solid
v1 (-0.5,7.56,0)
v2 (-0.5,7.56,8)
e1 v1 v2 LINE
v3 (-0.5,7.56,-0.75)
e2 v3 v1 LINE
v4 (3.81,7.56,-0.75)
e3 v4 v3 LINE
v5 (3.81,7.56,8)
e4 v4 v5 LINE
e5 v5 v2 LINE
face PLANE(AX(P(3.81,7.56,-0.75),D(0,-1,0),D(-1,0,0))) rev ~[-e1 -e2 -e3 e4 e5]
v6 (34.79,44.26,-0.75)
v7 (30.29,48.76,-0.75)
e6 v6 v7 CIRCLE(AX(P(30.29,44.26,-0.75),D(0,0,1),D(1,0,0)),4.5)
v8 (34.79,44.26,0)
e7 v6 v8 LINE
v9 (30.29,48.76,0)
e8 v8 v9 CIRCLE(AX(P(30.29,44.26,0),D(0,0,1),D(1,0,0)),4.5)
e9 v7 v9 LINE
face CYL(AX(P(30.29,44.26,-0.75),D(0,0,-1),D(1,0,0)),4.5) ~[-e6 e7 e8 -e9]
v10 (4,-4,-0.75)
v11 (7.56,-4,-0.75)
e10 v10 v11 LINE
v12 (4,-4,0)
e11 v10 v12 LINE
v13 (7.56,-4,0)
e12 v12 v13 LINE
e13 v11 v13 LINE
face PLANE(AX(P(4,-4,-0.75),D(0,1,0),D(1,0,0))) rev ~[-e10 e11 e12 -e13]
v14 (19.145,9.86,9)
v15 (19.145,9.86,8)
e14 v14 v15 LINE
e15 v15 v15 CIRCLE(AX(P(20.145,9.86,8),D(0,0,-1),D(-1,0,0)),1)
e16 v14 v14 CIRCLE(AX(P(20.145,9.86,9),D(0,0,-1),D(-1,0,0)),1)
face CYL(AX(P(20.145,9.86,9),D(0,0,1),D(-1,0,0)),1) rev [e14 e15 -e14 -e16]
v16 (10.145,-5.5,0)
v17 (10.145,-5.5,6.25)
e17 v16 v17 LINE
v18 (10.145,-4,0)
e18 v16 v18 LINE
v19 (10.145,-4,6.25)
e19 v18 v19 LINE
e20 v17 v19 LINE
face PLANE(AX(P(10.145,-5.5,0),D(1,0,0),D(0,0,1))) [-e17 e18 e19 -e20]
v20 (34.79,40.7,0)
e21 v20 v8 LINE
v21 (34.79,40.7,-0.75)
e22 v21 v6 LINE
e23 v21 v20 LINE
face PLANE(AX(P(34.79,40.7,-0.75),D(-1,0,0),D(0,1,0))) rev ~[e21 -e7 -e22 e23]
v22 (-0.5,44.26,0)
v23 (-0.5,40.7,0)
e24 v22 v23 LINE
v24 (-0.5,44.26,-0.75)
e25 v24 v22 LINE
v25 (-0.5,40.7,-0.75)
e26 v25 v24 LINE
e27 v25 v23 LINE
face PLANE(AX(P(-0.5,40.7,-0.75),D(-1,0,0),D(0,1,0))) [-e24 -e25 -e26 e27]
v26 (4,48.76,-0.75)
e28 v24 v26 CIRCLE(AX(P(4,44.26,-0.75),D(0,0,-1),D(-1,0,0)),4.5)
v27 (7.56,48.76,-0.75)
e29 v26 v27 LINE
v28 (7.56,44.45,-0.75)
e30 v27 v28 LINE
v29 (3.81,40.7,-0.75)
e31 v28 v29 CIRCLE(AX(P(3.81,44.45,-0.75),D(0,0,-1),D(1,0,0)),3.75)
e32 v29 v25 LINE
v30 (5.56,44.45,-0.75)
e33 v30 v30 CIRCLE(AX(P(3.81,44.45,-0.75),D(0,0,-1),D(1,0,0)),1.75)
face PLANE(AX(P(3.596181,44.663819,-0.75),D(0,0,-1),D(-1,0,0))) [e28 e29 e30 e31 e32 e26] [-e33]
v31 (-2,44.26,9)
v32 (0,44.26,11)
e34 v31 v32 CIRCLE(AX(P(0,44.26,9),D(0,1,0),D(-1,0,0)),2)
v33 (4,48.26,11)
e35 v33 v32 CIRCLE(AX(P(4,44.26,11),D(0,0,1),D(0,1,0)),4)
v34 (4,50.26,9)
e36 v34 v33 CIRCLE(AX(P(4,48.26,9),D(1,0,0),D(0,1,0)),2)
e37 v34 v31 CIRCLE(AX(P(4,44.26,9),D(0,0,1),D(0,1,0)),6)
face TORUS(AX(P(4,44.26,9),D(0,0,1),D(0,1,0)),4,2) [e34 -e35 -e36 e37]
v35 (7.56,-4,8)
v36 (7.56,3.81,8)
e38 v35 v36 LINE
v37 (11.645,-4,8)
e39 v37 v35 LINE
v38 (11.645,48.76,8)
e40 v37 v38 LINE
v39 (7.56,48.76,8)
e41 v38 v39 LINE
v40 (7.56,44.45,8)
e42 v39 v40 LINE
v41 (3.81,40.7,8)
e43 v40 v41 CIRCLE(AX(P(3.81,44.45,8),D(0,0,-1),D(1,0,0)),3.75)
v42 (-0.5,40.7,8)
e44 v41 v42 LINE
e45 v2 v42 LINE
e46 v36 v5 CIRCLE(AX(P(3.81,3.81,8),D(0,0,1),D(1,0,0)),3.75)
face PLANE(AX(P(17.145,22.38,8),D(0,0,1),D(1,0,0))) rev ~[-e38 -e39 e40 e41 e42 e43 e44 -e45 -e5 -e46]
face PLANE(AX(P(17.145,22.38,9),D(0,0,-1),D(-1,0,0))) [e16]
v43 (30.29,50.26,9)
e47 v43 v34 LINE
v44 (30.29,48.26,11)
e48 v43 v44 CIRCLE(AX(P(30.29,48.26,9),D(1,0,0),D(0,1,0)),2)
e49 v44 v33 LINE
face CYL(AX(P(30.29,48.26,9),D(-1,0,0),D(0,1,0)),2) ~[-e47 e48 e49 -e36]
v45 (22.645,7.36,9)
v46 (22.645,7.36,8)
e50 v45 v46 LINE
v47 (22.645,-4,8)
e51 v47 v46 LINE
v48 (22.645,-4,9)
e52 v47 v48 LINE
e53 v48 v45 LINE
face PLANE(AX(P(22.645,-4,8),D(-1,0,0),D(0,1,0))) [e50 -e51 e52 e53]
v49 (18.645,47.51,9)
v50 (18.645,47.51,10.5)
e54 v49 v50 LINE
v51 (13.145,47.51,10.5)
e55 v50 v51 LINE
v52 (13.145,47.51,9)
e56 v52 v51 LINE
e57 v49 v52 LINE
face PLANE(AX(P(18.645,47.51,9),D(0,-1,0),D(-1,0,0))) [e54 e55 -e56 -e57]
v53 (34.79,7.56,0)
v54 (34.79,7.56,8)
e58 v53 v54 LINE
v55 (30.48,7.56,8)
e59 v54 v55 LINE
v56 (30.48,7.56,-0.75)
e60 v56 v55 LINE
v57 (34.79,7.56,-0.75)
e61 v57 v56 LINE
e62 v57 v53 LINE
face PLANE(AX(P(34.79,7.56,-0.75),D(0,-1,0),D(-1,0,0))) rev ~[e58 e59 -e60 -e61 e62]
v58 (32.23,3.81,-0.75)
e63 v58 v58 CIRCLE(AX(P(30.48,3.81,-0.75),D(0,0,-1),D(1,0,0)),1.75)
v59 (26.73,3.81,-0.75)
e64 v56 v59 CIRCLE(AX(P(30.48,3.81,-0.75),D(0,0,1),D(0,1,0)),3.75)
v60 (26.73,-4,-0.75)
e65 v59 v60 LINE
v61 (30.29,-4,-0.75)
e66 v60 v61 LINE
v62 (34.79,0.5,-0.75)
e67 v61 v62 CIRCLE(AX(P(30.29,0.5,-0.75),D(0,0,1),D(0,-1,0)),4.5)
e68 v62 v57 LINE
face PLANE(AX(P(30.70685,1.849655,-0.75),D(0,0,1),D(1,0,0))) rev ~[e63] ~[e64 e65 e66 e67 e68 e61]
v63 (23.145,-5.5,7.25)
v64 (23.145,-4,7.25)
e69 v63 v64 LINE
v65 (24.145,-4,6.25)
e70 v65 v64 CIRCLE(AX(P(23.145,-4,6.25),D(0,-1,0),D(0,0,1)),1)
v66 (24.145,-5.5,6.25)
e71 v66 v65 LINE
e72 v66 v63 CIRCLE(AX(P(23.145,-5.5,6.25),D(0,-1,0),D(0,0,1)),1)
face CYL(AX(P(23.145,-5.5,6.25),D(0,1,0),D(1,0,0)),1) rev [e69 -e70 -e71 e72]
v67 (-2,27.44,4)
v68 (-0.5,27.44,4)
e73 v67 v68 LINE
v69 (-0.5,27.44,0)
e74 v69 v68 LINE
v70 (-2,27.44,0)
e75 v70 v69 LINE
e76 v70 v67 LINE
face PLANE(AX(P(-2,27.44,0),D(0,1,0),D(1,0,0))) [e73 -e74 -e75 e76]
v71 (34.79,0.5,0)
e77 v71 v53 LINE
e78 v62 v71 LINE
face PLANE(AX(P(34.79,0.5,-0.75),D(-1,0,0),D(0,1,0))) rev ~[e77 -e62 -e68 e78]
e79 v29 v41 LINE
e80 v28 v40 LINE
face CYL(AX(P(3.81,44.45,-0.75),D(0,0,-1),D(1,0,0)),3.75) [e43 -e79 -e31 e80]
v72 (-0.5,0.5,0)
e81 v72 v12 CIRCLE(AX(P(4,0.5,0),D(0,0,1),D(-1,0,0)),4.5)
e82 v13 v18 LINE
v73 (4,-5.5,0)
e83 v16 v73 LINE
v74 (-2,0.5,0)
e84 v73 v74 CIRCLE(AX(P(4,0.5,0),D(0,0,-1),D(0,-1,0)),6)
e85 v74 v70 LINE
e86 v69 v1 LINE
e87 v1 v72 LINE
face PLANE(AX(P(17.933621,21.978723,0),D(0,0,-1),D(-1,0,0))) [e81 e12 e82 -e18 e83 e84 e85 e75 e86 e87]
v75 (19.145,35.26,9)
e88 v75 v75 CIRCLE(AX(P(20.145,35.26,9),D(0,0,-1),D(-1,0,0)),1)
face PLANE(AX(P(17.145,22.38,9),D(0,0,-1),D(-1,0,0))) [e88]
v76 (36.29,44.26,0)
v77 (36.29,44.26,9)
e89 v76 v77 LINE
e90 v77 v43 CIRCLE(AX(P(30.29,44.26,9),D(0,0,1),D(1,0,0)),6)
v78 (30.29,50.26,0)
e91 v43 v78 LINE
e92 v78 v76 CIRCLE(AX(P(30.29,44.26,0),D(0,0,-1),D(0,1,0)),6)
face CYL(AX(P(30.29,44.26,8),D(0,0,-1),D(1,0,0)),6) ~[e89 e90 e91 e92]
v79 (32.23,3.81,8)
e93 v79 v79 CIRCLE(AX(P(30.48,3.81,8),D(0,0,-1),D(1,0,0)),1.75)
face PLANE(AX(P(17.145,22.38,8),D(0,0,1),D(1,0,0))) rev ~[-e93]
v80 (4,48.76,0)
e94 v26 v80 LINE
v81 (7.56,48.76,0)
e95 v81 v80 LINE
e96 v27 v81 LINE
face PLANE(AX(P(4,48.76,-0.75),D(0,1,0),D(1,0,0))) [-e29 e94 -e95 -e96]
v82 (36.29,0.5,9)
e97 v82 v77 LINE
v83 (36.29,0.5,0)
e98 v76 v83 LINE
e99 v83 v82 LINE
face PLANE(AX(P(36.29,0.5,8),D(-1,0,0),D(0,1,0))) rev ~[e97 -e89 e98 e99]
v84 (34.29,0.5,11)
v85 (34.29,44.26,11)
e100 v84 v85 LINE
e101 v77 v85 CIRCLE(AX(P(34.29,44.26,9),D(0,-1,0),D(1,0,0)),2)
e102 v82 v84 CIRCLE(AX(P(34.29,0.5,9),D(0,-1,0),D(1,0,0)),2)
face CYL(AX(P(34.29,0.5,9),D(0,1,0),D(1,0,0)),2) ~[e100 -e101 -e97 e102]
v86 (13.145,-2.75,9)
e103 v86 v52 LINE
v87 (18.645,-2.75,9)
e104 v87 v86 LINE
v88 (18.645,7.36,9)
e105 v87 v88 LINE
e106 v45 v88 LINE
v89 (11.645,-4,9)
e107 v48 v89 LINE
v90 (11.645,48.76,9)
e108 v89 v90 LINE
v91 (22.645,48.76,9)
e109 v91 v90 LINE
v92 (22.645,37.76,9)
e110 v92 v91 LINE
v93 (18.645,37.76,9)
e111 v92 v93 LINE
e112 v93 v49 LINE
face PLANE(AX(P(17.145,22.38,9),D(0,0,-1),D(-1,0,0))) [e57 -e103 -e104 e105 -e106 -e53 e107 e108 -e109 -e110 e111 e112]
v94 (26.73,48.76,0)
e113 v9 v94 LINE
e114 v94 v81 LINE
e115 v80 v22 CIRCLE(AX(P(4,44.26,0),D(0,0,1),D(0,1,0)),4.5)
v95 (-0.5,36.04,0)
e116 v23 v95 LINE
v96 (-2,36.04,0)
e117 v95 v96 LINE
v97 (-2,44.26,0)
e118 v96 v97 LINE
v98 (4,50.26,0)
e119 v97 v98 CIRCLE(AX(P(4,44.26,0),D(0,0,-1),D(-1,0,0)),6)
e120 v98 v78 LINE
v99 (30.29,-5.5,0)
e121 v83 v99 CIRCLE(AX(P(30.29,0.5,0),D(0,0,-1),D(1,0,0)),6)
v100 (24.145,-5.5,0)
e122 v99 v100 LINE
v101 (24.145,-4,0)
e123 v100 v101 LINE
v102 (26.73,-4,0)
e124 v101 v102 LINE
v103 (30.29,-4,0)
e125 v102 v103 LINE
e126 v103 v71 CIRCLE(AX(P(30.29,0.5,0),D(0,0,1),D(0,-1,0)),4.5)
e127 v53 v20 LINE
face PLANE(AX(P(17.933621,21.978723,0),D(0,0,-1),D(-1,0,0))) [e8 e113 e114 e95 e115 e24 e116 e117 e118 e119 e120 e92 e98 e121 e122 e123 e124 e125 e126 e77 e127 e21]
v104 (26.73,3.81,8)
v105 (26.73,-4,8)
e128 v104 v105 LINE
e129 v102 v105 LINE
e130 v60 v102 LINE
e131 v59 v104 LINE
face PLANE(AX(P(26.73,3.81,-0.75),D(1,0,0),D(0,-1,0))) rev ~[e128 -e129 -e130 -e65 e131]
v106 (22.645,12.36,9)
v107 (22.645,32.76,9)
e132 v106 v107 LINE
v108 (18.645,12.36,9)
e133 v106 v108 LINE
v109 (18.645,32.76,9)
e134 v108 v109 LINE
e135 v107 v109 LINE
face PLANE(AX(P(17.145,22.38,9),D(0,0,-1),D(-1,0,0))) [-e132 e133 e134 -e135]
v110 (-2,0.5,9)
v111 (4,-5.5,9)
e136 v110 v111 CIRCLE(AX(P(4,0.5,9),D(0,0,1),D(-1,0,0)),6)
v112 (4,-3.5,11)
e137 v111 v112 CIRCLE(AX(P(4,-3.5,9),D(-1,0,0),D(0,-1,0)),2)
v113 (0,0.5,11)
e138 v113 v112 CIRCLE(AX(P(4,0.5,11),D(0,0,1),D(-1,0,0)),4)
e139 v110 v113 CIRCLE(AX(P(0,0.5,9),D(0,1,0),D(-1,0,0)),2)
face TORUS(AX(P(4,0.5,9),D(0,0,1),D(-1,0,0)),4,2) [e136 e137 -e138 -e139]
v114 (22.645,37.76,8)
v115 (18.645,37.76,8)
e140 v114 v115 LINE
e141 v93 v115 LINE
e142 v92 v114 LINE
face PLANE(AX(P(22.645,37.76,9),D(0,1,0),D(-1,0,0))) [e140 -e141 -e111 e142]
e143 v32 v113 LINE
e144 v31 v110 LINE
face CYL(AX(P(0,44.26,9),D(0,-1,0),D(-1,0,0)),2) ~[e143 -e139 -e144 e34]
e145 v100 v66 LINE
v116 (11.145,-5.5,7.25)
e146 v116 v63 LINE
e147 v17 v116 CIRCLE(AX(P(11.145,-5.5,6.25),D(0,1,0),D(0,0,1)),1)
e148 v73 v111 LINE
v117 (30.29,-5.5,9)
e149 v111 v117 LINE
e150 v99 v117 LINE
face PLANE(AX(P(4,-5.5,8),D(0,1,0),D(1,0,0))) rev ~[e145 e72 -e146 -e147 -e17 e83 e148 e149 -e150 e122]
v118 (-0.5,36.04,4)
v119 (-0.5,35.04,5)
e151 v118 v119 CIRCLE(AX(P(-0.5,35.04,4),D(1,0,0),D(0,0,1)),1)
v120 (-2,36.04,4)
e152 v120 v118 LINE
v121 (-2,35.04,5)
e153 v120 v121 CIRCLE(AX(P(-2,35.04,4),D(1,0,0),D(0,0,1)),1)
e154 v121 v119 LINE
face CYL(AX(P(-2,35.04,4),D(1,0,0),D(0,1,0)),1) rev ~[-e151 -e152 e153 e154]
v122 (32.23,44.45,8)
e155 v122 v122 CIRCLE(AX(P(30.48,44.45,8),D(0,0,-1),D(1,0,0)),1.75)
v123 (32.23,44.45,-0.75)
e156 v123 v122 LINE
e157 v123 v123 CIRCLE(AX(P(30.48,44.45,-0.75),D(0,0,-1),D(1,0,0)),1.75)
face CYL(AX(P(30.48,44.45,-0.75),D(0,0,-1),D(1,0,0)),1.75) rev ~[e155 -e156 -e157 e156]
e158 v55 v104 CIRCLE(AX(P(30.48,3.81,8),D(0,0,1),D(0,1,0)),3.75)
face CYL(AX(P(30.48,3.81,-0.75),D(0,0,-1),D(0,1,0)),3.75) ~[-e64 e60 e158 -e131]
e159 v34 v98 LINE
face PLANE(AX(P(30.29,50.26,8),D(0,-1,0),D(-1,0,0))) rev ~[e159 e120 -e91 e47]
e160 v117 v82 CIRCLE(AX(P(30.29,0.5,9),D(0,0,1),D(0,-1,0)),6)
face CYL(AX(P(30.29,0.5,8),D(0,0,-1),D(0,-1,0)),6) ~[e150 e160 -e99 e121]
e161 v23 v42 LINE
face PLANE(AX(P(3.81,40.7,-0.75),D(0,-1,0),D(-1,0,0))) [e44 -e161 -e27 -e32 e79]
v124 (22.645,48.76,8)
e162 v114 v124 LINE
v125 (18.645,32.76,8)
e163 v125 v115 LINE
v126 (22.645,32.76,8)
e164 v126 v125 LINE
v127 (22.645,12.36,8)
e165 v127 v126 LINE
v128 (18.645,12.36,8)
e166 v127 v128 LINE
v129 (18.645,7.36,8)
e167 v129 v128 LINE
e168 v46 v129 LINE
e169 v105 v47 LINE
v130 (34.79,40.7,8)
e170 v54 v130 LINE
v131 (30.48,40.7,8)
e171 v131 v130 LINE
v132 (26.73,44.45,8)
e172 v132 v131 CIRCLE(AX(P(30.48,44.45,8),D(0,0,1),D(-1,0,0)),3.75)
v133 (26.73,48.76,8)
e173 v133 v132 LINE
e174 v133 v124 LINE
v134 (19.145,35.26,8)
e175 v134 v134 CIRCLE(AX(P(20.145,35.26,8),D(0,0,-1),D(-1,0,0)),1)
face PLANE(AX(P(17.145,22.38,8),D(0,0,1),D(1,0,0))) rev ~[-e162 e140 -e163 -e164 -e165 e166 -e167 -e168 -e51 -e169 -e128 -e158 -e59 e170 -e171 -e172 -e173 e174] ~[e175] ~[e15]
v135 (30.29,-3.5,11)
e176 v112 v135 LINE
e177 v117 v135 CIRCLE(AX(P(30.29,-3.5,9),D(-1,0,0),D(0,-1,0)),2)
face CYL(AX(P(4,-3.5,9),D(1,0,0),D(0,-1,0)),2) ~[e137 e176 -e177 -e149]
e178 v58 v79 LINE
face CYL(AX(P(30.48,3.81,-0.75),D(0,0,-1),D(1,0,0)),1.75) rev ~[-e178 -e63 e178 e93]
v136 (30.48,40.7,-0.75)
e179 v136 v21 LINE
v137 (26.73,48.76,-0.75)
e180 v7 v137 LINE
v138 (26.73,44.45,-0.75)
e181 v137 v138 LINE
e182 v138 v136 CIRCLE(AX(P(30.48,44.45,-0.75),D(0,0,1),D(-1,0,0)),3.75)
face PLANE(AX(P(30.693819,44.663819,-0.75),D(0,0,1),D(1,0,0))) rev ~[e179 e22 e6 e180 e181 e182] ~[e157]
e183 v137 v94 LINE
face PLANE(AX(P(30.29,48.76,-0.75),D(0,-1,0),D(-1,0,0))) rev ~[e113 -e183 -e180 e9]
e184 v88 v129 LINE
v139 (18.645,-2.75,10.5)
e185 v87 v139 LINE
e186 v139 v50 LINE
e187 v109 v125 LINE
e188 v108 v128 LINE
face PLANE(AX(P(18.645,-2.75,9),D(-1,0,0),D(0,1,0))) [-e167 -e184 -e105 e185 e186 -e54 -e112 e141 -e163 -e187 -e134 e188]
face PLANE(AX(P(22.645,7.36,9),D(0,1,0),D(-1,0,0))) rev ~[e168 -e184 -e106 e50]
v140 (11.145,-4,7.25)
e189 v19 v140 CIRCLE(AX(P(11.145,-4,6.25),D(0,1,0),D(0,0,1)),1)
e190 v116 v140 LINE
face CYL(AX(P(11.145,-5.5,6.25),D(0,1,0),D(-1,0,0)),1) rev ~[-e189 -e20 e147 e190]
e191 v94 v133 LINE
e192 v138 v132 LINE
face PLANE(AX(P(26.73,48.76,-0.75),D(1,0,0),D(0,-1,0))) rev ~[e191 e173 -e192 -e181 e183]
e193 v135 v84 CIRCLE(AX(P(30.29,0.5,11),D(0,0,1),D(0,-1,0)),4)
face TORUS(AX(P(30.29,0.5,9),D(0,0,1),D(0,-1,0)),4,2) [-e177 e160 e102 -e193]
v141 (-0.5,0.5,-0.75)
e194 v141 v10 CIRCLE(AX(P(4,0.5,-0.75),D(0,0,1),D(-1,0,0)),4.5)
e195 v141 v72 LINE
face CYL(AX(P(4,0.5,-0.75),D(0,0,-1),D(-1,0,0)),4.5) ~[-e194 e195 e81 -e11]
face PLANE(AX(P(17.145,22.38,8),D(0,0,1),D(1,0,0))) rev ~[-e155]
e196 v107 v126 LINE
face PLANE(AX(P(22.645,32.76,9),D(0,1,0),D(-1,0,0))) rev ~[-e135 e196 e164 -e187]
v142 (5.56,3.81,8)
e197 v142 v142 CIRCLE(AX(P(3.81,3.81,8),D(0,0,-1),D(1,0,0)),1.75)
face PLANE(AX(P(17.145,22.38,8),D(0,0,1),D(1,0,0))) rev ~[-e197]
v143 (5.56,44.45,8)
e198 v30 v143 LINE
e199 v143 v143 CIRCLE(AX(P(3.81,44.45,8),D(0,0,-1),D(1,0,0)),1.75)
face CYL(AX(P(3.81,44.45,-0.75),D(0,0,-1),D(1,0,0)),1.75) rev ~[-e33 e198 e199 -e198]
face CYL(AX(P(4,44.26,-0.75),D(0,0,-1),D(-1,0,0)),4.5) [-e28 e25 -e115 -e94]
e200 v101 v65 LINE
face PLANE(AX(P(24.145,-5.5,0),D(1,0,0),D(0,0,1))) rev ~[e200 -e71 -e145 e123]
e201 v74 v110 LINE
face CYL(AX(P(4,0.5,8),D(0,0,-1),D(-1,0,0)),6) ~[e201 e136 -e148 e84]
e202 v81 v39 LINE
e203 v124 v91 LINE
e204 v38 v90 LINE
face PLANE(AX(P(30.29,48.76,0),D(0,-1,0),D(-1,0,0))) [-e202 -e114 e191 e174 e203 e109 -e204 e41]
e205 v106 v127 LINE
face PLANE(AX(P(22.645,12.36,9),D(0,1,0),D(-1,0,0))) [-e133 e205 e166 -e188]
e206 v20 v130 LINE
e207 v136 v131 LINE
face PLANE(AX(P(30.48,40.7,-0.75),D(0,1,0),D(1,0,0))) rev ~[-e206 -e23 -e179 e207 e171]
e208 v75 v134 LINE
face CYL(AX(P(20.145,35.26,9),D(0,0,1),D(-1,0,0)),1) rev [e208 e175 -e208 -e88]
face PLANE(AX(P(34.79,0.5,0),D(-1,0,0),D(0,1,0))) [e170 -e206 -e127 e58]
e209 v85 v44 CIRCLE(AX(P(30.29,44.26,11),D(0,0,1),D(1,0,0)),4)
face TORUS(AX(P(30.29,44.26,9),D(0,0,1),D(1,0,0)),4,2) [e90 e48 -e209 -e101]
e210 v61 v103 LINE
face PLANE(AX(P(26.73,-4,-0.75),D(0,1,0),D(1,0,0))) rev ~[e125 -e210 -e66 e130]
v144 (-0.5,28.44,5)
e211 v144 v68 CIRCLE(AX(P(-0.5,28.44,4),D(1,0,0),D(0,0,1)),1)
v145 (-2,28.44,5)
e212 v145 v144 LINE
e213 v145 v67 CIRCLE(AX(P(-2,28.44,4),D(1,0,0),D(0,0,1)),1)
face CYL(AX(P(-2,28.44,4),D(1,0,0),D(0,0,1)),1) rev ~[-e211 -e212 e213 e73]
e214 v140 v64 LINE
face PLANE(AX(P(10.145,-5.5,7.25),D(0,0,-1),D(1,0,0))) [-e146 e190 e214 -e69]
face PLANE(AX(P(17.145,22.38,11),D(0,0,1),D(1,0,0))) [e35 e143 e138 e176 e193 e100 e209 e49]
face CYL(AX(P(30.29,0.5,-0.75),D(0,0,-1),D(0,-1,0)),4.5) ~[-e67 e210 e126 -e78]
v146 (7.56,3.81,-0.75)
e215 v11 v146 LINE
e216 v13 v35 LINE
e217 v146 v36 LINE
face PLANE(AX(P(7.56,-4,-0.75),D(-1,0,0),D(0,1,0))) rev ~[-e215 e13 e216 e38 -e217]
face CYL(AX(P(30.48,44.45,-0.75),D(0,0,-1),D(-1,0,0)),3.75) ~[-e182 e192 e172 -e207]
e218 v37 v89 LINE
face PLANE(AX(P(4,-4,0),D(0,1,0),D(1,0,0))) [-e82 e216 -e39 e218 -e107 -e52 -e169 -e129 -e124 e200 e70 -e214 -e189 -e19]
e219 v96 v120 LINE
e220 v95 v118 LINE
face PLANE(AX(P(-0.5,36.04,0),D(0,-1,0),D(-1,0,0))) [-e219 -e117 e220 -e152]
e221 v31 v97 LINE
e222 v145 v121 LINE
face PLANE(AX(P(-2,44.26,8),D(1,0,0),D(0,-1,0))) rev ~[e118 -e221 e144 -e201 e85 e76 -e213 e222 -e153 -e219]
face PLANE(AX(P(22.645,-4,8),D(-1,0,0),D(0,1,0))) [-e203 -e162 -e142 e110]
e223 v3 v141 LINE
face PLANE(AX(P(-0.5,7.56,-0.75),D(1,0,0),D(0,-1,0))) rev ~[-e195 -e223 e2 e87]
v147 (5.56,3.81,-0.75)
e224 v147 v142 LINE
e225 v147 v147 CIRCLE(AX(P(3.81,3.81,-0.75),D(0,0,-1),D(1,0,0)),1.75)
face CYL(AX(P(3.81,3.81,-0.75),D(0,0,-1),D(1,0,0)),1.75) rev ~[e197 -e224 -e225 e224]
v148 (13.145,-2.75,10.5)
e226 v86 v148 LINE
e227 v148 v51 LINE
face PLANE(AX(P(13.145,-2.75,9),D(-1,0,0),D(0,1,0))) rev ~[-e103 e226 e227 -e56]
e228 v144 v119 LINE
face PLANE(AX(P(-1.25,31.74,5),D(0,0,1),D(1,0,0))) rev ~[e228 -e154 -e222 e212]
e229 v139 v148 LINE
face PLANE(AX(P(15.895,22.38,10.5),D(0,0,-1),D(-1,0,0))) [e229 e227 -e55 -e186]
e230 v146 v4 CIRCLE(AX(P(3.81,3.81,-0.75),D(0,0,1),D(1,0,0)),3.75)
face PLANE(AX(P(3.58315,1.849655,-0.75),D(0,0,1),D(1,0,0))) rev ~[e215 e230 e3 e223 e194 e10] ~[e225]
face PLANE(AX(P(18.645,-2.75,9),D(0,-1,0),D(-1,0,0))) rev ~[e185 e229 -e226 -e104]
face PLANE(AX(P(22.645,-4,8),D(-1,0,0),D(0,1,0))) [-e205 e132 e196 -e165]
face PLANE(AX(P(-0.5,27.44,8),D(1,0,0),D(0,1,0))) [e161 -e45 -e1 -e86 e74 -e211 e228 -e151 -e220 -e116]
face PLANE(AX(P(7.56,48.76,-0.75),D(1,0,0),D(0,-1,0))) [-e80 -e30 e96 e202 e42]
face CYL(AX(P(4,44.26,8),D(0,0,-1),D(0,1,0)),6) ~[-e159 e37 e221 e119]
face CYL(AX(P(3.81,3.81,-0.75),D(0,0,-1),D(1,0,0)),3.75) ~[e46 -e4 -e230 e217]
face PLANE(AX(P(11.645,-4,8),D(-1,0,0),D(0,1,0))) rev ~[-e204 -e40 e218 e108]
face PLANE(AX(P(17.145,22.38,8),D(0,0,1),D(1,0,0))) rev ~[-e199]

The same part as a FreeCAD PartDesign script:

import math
import FreeCAD as App
import Part
import Sketcher
Q = App.Units.Quantity


def edges_at(feature, points):
    """Names of the edges that pass closest to the given points."""
    edges = feature.Shape.Edges
    near = lambda p: min(range(len(edges)), key=lambda i: edges[i].distToShape(Part.Vertex(*p))[0])
    return sorted({f"Edge{near(p) + 1}" for p in points})

doc = App.newDocument("Part")
body = doc.addObject("PartDesign::Body", "Body")

# Sketch on XY plane
sketch1 = doc.addObject("Sketcher::SketchObject", "Sketch")
body.addObject(sketch1)
sketch1.AttachmentSupport = (doc.XY_Plane, [""])
sketch1.MapMode = "FlatFace"
sketch1.addGeometry(Part.LineSegment(App.Vector(-0.5, 0.5, 0), App.Vector(-0.5, 27.4, 0)), False)
sketch1.addGeometry(Part.LineSegment(App.Vector(-0.5, 27.4, 0), App.Vector(-2, 27.4, 0)), False)
sketch1.addGeometry(Part.LineSegment(App.Vector(-2, 27.4, 0), App.Vector(-2, 0.5, 0)), False)
sketch1.addGeometry(Part.ArcOfCircle(Part.Circle(App.Vector(4, 0.5, 0), App.Vector(0, 0, 1), 6), math.radians(180), math.radians(270)), False)
sketch1.addGeometry(Part.LineSegment(App.Vector(4, -5.5, 0), App.Vector(30.3, -5.5, 0)), False)
sketch1.addGeometry(Part.ArcOfCircle(Part.Circle(App.Vector(30.3, 0.5, 0), App.Vector(0, 0, 1), 6), math.radians(-90), math.radians(0)), False)
sketch1.addGeometry(Part.LineSegment(App.Vector(36.3, 0.5, 0), App.Vector(36.3, 44.3, 0)), False)
sketch1.addGeometry(Part.ArcOfCircle(Part.Circle(App.Vector(30.3, 44.3, 0), App.Vector(0, 0, 1), 6), math.radians(0), math.radians(90)), False)
sketch1.addGeometry(Part.LineSegment(App.Vector(30.3, 50.3, 0), App.Vector(4, 50.3, 0)), False)
sketch1.addGeometry(Part.ArcOfCircle(Part.Circle(App.Vector(4, 44.3, 0), App.Vector(0, 0, 1), 6), math.radians(90), math.radians(180)), False)
sketch1.addGeometry(Part.LineSegment(App.Vector(-2, 44.3, 0), App.Vector(-2, 36, 0)), False)
sketch1.addGeometry(Part.LineSegment(App.Vector(-2, 36, 0), App.Vector(-0.5, 36, 0)), False)
sketch1.addGeometry(Part.LineSegment(App.Vector(-0.5, 36, 0), App.Vector(-0.5, 44.3, 0)), False)
sketch1.addGeometry(Part.ArcOfCircle(Part.Circle(App.Vector(4, 44.3, 0), App.Vector(0, 0, 1), 4.5), math.radians(90), math.radians(180)), False)
sketch1.addGeometry(Part.LineSegment(App.Vector(4, 48.8, 0), App.Vector(30.3, 48.8, 0)), False)
sketch1.addGeometry(Part.ArcOfCircle(Part.Circle(App.Vector(30.3, 44.3, 0), App.Vector(0, 0, 1), 4.5), math.radians(0), math.radians(90)), False)
sketch1.addGeometry(Part.LineSegment(App.Vector(34.8, 44.3, 0), App.Vector(34.8, 0.5, 0)), False)
sketch1.addGeometry(Part.ArcOfCircle(Part.Circle(App.Vector(30.3, 0.5, 0), App.Vector(0, 0, 1), 4.5), math.radians(-90), math.radians(0)), False)
sketch1.addGeometry(Part.LineSegment(App.Vector(30.3, -4, 0), App.Vector(4, -4, 0)), False)
sketch1.addGeometry(Part.ArcOfCircle(Part.Circle(App.Vector(4, 0.5, 0), App.Vector(0, 0, 1), 4.5), math.radians(-180), math.radians(-90)), False)
sketch1.addConstraint(Sketcher.Constraint("Coincident", 0, 2, 1, 1))
sketch1.addConstraint(Sketcher.Constraint("Coincident", 1, 2, 2, 1))
sketch1.addConstraint(Sketcher.Constraint("Tangent", 2, 2, 3, 1))
sketch1.addConstraint(Sketcher.Constraint("Tangent", 3, 2, 4, 1))
sketch1.addConstraint(Sketcher.Constraint("Tangent", 4, 2, 5, 1))
sketch1.addConstraint(Sketcher.Constraint("Tangent", 5, 2, 6, 1))
sketch1.addConstraint(Sketcher.Constraint("Tangent", 6, 2, 7, 1))
sketch1.addConstraint(Sketcher.Constraint("Tangent", 7, 2, 8, 1))
sketch1.addConstraint(Sketcher.Constraint("Tangent", 8, 2, 9, 1))
sketch1.addConstraint(Sketcher.Constraint("Tangent", 9, 2, 10, 1))
sketch1.addConstraint(Sketcher.Constraint("Coincident", 10, 2, 11, 1))
sketch1.addConstraint(Sketcher.Constraint("Coincident", 11, 2, 12, 1))
sketch1.addConstraint(Sketcher.Constraint("Tangent", 12, 2, 13, 2))
sketch1.addConstraint(Sketcher.Constraint("Tangent", 13, 1, 14, 1))
sketch1.addConstraint(Sketcher.Constraint("Tangent", 14, 2, 15, 2))
sketch1.addConstraint(Sketcher.Constraint("Tangent", 15, 1, 16, 1))
sketch1.addConstraint(Sketcher.Constraint("Tangent", 16, 2, 17, 2))
sketch1.addConstraint(Sketcher.Constraint("Tangent", 17, 1, 18, 1))
sketch1.addConstraint(Sketcher.Constraint("Tangent", 18, 2, 19, 2))
sketch1.addConstraint(Sketcher.Constraint("Tangent", 19, 1, 0, 1))
sketch1.addConstraint(Sketcher.Constraint("Vertical", 0))
sketch1.addConstraint(Sketcher.Constraint("Horizontal", 1))
sketch1.addConstraint(Sketcher.Constraint("Vertical", 2))
sketch1.addConstraint(Sketcher.Constraint("Horizontal", 4))
sketch1.addConstraint(Sketcher.Constraint("Vertical", 6))
sketch1.addConstraint(Sketcher.Constraint("Horizontal", 8))
sketch1.addConstraint(Sketcher.Constraint("Vertical", 10))
sketch1.addConstraint(Sketcher.Constraint("Horizontal", 11))
sketch1.addConstraint(Sketcher.Constraint("Vertical", 12))
sketch1.addConstraint(Sketcher.Constraint("Horizontal", 14))
sketch1.addConstraint(Sketcher.Constraint("Vertical", 16))
sketch1.addConstraint(Sketcher.Constraint("Horizontal", 18))
sketch1.addConstraint(Sketcher.Constraint("Coincident", 13, 3, 9, 3))
sketch1.addConstraint(Sketcher.Constraint("Coincident", 15, 3, 7, 3))
sketch1.addConstraint(Sketcher.Constraint("Coincident", 17, 3, 5, 3))
sketch1.addConstraint(Sketcher.Constraint("Coincident", 19, 3, 3, 3))
sketch1.addConstraint(Sketcher.Constraint("Equal", 3, 5))
sketch1.addConstraint(Sketcher.Constraint("Equal", 5, 7))
sketch1.addConstraint(Sketcher.Constraint("Equal", 7, 9))
sketch1.addConstraint(Sketcher.Constraint("Vertical", 3, 3, 9, 3))
sketch1.addConstraint(Sketcher.Constraint("Radius", 3, Q("6 mm")))
sketch1.addConstraint(Sketcher.Constraint("Radius", 13, Q("4.5 mm")))
sketch1.addConstraint(Sketcher.Constraint("DistanceX", -1, 1, 3, 3, Q("4 mm")))
sketch1.addConstraint(Sketcher.Constraint("DistanceY", 17, 1, -1, 1, Q("4 mm")))
sketch1.addConstraint(Sketcher.Constraint("DistanceX", 4, 1, 4, 2, Q("26.29 mm")))
sketch1.addConstraint(Sketcher.Constraint("DistanceY", 0, 1, 0, 2, Q("26.94 mm")))
sketch1.addConstraint(Sketcher.Constraint("DistanceY", 6, 1, 6, 2, Q("43.76 mm")))
sketch1.addConstraint(Sketcher.Constraint("DistanceY", 10, 2, 10, 1, Q("8.22 mm")))
pad1 = doc.addObject("PartDesign::Pad", "Pad")
body.addObject(pad1)
pad1.Profile = sketch1
pad1.Length = 8

# Sketch on XY plane
sketch2 = doc.addObject("Sketcher::SketchObject", "Sketch001")
body.addObject(sketch2)
sketch2.AttachmentSupport = (doc.XY_Plane, [""])
sketch2.MapMode = "FlatFace"
sketch2.AttachmentOffset = App.Placement(App.Vector(0, 0, 8), App.Rotation())
sketch2.addGeometry(Part.LineSegment(App.Vector(-2, 36, 0), App.Vector(-2, 27.4, 0)), False)
sketch2.addGeometry(Part.LineSegment(App.Vector(-2, 27.4, 0), App.Vector(-0.5, 27.4, 0)), False)
sketch2.addGeometry(Part.LineSegment(App.Vector(-0.5, 27.4, 0), App.Vector(-0.5, 36, 0)), False)
sketch2.addGeometry(Part.LineSegment(App.Vector(-0.5, 36, 0), App.Vector(-2, 36, 0)), False)
sketch2.addConstraint(Sketcher.Constraint("Coincident", 0, 2, 1, 1))
sketch2.addConstraint(Sketcher.Constraint("Coincident", 1, 2, 2, 1))
sketch2.addConstraint(Sketcher.Constraint("Coincident", 2, 2, 3, 1))
sketch2.addConstraint(Sketcher.Constraint("Coincident", 3, 2, 0, 1))
sketch2.addConstraint(Sketcher.Constraint("Vertical", 0))
sketch2.addConstraint(Sketcher.Constraint("Horizontal", 1))
sketch2.addConstraint(Sketcher.Constraint("Vertical", 2))
sketch2.addConstraint(Sketcher.Constraint("Horizontal", 3))
sketch2.addConstraint(Sketcher.Constraint("DistanceX", 1, 1, 1, 2, Q("1.5 mm")))
sketch2.addConstraint(Sketcher.Constraint("DistanceY", 0, 2, 0, 1, Q("8.6 mm")))
sketch2.addConstraint(Sketcher.Constraint("DistanceX", 0, 2, -1, 1, Q("2 mm")))
sketch2.addConstraint(Sketcher.Constraint("DistanceY", -1, 1, 0, 2, Q("27.44 mm")))
pad2 = doc.addObject("PartDesign::Pad", "Pad001")
body.addObject(pad2)
pad2.Profile = sketch2
pad2.Length = 3
pad2.Reversed = True

# Sketch on XY plane
sketch3 = doc.addObject("Sketcher::SketchObject", "Sketch002")
body.addObject(sketch3)
sketch3.AttachmentSupport = (doc.XY_Plane, [""])
sketch3.MapMode = "FlatFace"
sketch3.AttachmentOffset = App.Placement(App.Vector(0, 0, 8), App.Rotation())
sketch3.addGeometry(Part.LineSegment(App.Vector(-2, 44, 0), App.Vector(-2, 0, 0)), False)
sketch3.addGeometry(Part.ArcOfCircle(Part.Circle(App.Vector(4, 0, 0), App.Vector(0, 0, 1), 6), math.radians(180), math.radians(270)), False)
sketch3.addGeometry(Part.LineSegment(App.Vector(4, -6, 0), App.Vector(30, -6, 0)), False)
sketch3.addGeometry(Part.ArcOfCircle(Part.Circle(App.Vector(30, 0, 0), App.Vector(0, 0, 1), 6), math.radians(-90), math.radians(0)), False)
sketch3.addGeometry(Part.LineSegment(App.Vector(36, 0, 0), App.Vector(36, 44, 0)), False)
sketch3.addGeometry(Part.ArcOfCircle(Part.Circle(App.Vector(30, 44, 0), App.Vector(0, 0, 1), 6), math.radians(0), math.radians(90)), False)
sketch3.addGeometry(Part.LineSegment(App.Vector(30, 50, 0), App.Vector(4, 50, 0)), False)
sketch3.addGeometry(Part.ArcOfCircle(Part.Circle(App.Vector(4, 44, 0), App.Vector(0, 0, 1), 6), math.radians(90), math.radians(180)), False)
sketch3.addConstraint(Sketcher.Constraint("Tangent", 0, 2, 1, 1))
sketch3.addConstraint(Sketcher.Constraint("Tangent", 1, 2, 2, 1))
sketch3.addConstraint(Sketcher.Constraint("Tangent", 2, 2, 3, 1))
sketch3.addConstraint(Sketcher.Constraint("Tangent", 3, 2, 4, 1))
sketch3.addConstraint(Sketcher.Constraint("Tangent", 4, 2, 5, 1))
sketch3.addConstraint(Sketcher.Constraint("Tangent", 5, 2, 6, 1))
sketch3.addConstraint(Sketcher.Constraint("Tangent", 6, 2, 7, 1))
sketch3.addConstraint(Sketcher.Constraint("Tangent", 7, 2, 0, 1))
sketch3.addConstraint(Sketcher.Constraint("Vertical", 0))
sketch3.addConstraint(Sketcher.Constraint("Horizontal", 2))
sketch3.addConstraint(Sketcher.Constraint("Vertical", 4))
sketch3.addConstraint(Sketcher.Constraint("Horizontal", 6))
sketch3.addConstraint(Sketcher.Constraint("Equal", 1, 3))
sketch3.addConstraint(Sketcher.Constraint("Equal", 3, 5))
sketch3.addConstraint(Sketcher.Constraint("Equal", 5, 7))
sketch3.addConstraint(Sketcher.Constraint("Radius", 1, Q("6 mm")))
sketch3.addConstraint(Sketcher.Constraint("DistanceX", -1, 1, 1, 3, Q("4 mm")))
sketch3.addConstraint(Sketcher.Constraint("DistanceX", 2, 1, 2, 2, Q("26.29 mm")))
sketch3.addConstraint(Sketcher.Constraint("DistanceY", 0, 2, 0, 1, Q("43.76 mm")))
sketch3.addConstraint(Sketcher.Constraint("DistanceY", -1, 1, 1, 3, Q("0.5 mm")))
pad3 = doc.addObject("PartDesign::Pad", "Pad002")
body.addObject(pad3)
pad3.Profile = sketch3
pad3.Length = 3

# Sketch on XY plane
sketch4 = doc.addObject("Sketcher::SketchObject", "Sketch003")
body.addObject(sketch4)
sketch4.AttachmentSupport = (doc.XY_Plane, [""])
sketch4.MapMode = "FlatFace"
sketch4.AttachmentOffset = App.Placement(App.Vector(0, 0, -0.75), App.Rotation())
sketch4.addGeometry(Part.LineSegment(App.Vector(26.7, 48.8, 0), App.Vector(30.3, 48.8, 0)), False)
sketch4.addGeometry(Part.ArcOfCircle(Part.Circle(App.Vector(30.3, 44.3, 0), App.Vector(0, 0, 1), 4.5), math.radians(0), math.radians(90)), False)
sketch4.addGeometry(Part.LineSegment(App.Vector(34.8, 44.3, 0), App.Vector(34.8, 40.7, 0)), False)
sketch4.addGeometry(Part.LineSegment(App.Vector(34.8, 40.7, 0), App.Vector(30.5, 40.7, 0)), False)
sketch4.addGeometry(Part.ArcOfCircle(Part.Circle(App.Vector(30.5, 44.5, 0), App.Vector(0, 0, 1), 3.8), math.radians(-180), math.radians(-90)), False)
sketch4.addGeometry(Part.LineSegment(App.Vector(26.7, 44.5, 0), App.Vector(26.7, 48.8, 0)), False)
sketch4.addGeometry(Part.Circle(App.Vector(30.5, 44.5, 0), App.Vector(0, 0, 1), 1.8), False)
sketch4.addGeometry(Part.LineSegment(App.Vector(3.8, 40.7, 0), App.Vector(-0.5, 40.7, 0)), False)
sketch4.addGeometry(Part.LineSegment(App.Vector(-0.5, 40.7, 0), App.Vector(-0.5, 44.3, 0)), False)
sketch4.addGeometry(Part.ArcOfCircle(Part.Circle(App.Vector(4, 44.3, 0), App.Vector(0, 0, 1), 4.5), math.radians(90), math.radians(180)), False)
sketch4.addGeometry(Part.LineSegment(App.Vector(4, 48.8, 0), App.Vector(7.6, 48.8, 0)), False)
sketch4.addGeometry(Part.LineSegment(App.Vector(7.6, 48.8, 0), App.Vector(7.6, 44.5, 0)), False)
sketch4.addGeometry(Part.ArcOfCircle(Part.Circle(App.Vector(3.8, 44.5, 0), App.Vector(0, 0, 1), 3.8), math.radians(-90), math.radians(0)), False)
sketch4.addGeometry(Part.Circle(App.Vector(3.8, 44.5, 0), App.Vector(0, 0, 1), 1.8), False)
sketch4.addGeometry(Part.LineSegment(App.Vector(-0.5, 0.5, 0), App.Vector(-0.5, 7.6, 0)), False)
sketch4.addGeometry(Part.LineSegment(App.Vector(-0.5, 7.6, 0), App.Vector(3.8, 7.6, 0)), False)
sketch4.addGeometry(Part.ArcOfCircle(Part.Circle(App.Vector(3.8, 3.8, 0), App.Vector(0, 0, 1), 3.8), math.radians(0), math.radians(90)), False)
sketch4.addGeometry(Part.LineSegment(App.Vector(7.6, 3.8, 0), App.Vector(7.6, -4, 0)), False)
sketch4.addGeometry(Part.LineSegment(App.Vector(7.6, -4, 0), App.Vector(4, -4, 0)), False)
sketch4.addGeometry(Part.ArcOfCircle(Part.Circle(App.Vector(4, 0.5, 0), App.Vector(0, 0, 1), 4.5), math.radians(-180), math.radians(-90)), False)
sketch4.addGeometry(Part.Circle(App.Vector(3.8, 3.8, 0), App.Vector(0, 0, 1), 1.8), False)
sketch4.addGeometry(Part.LineSegment(App.Vector(30.3, -4, 0), App.Vector(26.7, -4, 0)), False)
sketch4.addGeometry(Part.LineSegment(App.Vector(26.7, -4, 0), App.Vector(26.7, 3.8, 0)), False)
sketch4.addGeometry(Part.ArcOfCircle(Part.Circle(App.Vector(30.5, 3.8, 0), App.Vector(0, 0, 1), 3.8), math.radians(90), math.radians(180)), False)
sketch4.addGeometry(Part.LineSegment(App.Vector(30.5, 7.6, 0), App.Vector(34.8, 7.6, 0)), False)
sketch4.addGeometry(Part.LineSegment(App.Vector(34.8, 7.6, 0), App.Vector(34.8, 0.5, 0)), False)
sketch4.addGeometry(Part.ArcOfCircle(Part.Circle(App.Vector(30.3, 0.5, 0), App.Vector(0, 0, 1), 4.5), math.radians(-90), math.radians(0)), False)
sketch4.addGeometry(Part.Circle(App.Vector(30.5, 3.8, 0), App.Vector(0, 0, 1), 1.8), False)
sketch4.addConstraint(Sketcher.Constraint("Tangent", 0, 2, 1, 2))
sketch4.addConstraint(Sketcher.Constraint("Tangent", 1, 1, 2, 1))
sketch4.addConstraint(Sketcher.Constraint("Coincident", 2, 2, 3, 1))
sketch4.addConstraint(Sketcher.Constraint("Tangent", 3, 2, 4, 2))
sketch4.addConstraint(Sketcher.Constraint("Tangent", 4, 1, 5, 1))
sketch4.addConstraint(Sketcher.Constraint("Coincident", 5, 2, 0, 1))
sketch4.addConstraint(Sketcher.Constraint("Coincident", 7, 2, 8, 1))
sketch4.addConstraint(Sketcher.Constraint("Tangent", 8, 2, 9, 2))
sketch4.addConstraint(Sketcher.Constraint("Tangent", 9, 1, 10, 1))
sketch4.addConstraint(Sketcher.Constraint("Coincident", 10, 2, 11, 1))
sketch4.addConstraint(Sketcher.Constraint("Tangent", 11, 2, 12, 2))
sketch4.addConstraint(Sketcher.Constraint("Tangent", 12, 1, 7, 1))
sketch4.addConstraint(Sketcher.Constraint("Coincident", 14, 2, 15, 1))
sketch4.addConstraint(Sketcher.Constraint("Tangent", 15, 2, 16, 2))
sketch4.addConstraint(Sketcher.Constraint("Tangent", 16, 1, 17, 1))
sketch4.addConstraint(Sketcher.Constraint("Coincident", 17, 2, 18, 1))
sketch4.addConstraint(Sketcher.Constraint("Tangent", 18, 2, 19, 2))
sketch4.addConstraint(Sketcher.Constraint("Tangent", 19, 1, 14, 1))
sketch4.addConstraint(Sketcher.Constraint("Coincident", 21, 2, 22, 1))
sketch4.addConstraint(Sketcher.Constraint("Tangent", 22, 2, 23, 2))
sketch4.addConstraint(Sketcher.Constraint("Tangent", 23, 1, 24, 1))
sketch4.addConstraint(Sketcher.Constraint("Coincident", 24, 2, 25, 1))
sketch4.addConstraint(Sketcher.Constraint("Tangent", 25, 2, 26, 2))
sketch4.addConstraint(Sketcher.Constraint("Tangent", 26, 1, 21, 1))
sketch4.addConstraint(Sketcher.Constraint("Horizontal", 0))
sketch4.addConstraint(Sketcher.Constraint("Vertical", 2))
sketch4.addConstraint(Sketcher.Constraint("Horizontal", 3))
sketch4.addConstraint(Sketcher.Constraint("Vertical", 5))
sketch4.addConstraint(Sketcher.Constraint("Horizontal", 7))
sketch4.addConstraint(Sketcher.Constraint("Vertical", 8))
sketch4.addConstraint(Sketcher.Constraint("Horizontal", 10))
sketch4.addConstraint(Sketcher.Constraint("Vertical", 11))
sketch4.addConstraint(Sketcher.Constraint("Vertical", 14))
sketch4.addConstraint(Sketcher.Constraint("Horizontal", 15))
sketch4.addConstraint(Sketcher.Constraint("Vertical", 17))
sketch4.addConstraint(Sketcher.Constraint("Horizontal", 18))
sketch4.addConstraint(Sketcher.Constraint("Horizontal", 21))
sketch4.addConstraint(Sketcher.Constraint("Vertical", 22))
sketch4.addConstraint(Sketcher.Constraint("Horizontal", 24))
sketch4.addConstraint(Sketcher.Constraint("Vertical", 25))
sketch4.addConstraint(Sketcher.Constraint("Coincident", 6, 3, 4, 3))
sketch4.addConstraint(Sketcher.Constraint("Coincident", 13, 3, 12, 3))
sketch4.addConstraint(Sketcher.Constraint("Coincident", 20, 3, 16, 3))
sketch4.addConstraint(Sketcher.Constraint("Coincident", 27, 3, 23, 3))
sketch4.addConstraint(Sketcher.Constraint("Equal", 1, 9))
sketch4.addConstraint(Sketcher.Constraint("Equal", 4, 12))
sketch4.addConstraint(Sketcher.Constraint("Equal", 6, 13))
sketch4.addConstraint(Sketcher.Constraint("Equal", 12, 16))
sketch4.addConstraint(Sketcher.Constraint("Equal", 9, 19))
sketch4.addConstraint(Sketcher.Constraint("Equal", 13, 20))
sketch4.addConstraint(Sketcher.Constraint("Equal", 16, 23))
sketch4.addConstraint(Sketcher.Constraint("Equal", 19, 26))
sketch4.addConstraint(Sketcher.Constraint("Equal", 20, 27))
sketch4.addConstraint(Sketcher.Constraint("Horizontal", 1, 3, 9, 3))
sketch4.addConstraint(Sketcher.Constraint("Horizontal", 6, 3, 12, 3))
sketch4.addConstraint(Sketcher.Constraint("Horizontal", 20, 3, 23, 3))
sketch4.addConstraint(Sketcher.Constraint("Horizontal", 19, 3, 26, 3))
sketch4.addConstraint(Sketcher.Constraint("Vertical", 13, 3, 16, 3))
sketch4.addConstraint(Sketcher.Constraint("Vertical", 9, 3, 19, 3))
sketch4.addConstraint(Sketcher.Constraint("Vertical", 6, 3, 23, 3))
sketch4.addConstraint(Sketcher.Constraint("Vertical", 1, 3, 26, 3))
sketch4.addConstraint(Sketcher.Constraint("Equal", 3, 7))
sketch4.addConstraint(Sketcher.Constraint("Equal", 21, 2))
sketch4.addConstraint(Sketcher.Constraint("Diameter", 6, Q("3.5 mm")))
sketch4.addConstraint(Sketcher.Constraint("Radius", 1, Q("4.5 mm")))
sketch4.addConstraint(Sketcher.Constraint("Radius", 4, Q("3.75 mm")))
sketch4.addConstraint(Sketcher.Constraint("DistanceX", -1, 1, 9, 3, Q("4 mm")))
sketch4.addConstraint(Sketcher.Constraint("DistanceY", 17, 2, -1, 1, Q("4 mm")))
sketch4.addConstraint(Sketcher.Constraint("DistanceX", 0, 1, 0, 2, Q("3.56 mm")))
sketch4.addConstraint(Sketcher.Constraint("DistanceY", 14, 1, 14, 2, Q("7.06 mm")))
sketch4.addConstraint(Sketcher.Constraint("DistanceY", -1, 1, 2, 2, Q("40.7 mm")))
sketch4.addConstraint(Sketcher.Constraint("DistanceX", -1, 1, 1, 3, Q("30.29 mm")))
pad4 = doc.addObject("PartDesign::Pad", "Pad003")
body.addObject(pad4)
pad4.Profile = sketch4
pad4.Length = 8.75

# Sketch on XY plane
sketch5 = doc.addObject("Sketcher::SketchObject", "Sketch004")
body.addObject(sketch5)
sketch5.AttachmentSupport = (doc.XY_Plane, [""])
sketch5.MapMode = "FlatFace"
sketch5.AttachmentOffset = App.Placement(App.Vector(0, 0, 8), App.Rotation())
sketch5.addGeometry(Part.LineSegment(App.Vector(24.2, -4, 0), App.Vector(24.2, -5.5, 0)), False)
sketch5.addGeometry(Part.LineSegment(App.Vector(24.2, -5.5, 0), App.Vector(10.1, -5.5, 0)), False)
sketch5.addGeometry(Part.LineSegment(App.Vector(10.1, -5.5, 0), App.Vector(10.1, -4, 0)), False)
sketch5.addGeometry(Part.LineSegment(App.Vector(10.1, -4, 0), App.Vector(24.2, -4, 0)), False)
sketch5.addConstraint(Sketcher.Constraint("Coincident", 0, 2, 1, 1))
sketch5.addConstraint(Sketcher.Constraint("Coincident", 1, 2, 2, 1))
sketch5.addConstraint(Sketcher.Constraint("Coincident", 2, 2, 3, 1))
sketch5.addConstraint(Sketcher.Constraint("Coincident", 3, 2, 0, 1))
sketch5.addConstraint(Sketcher.Constraint("Vertical", 0))
sketch5.addConstraint(Sketcher.Constraint("Horizontal", 1))
sketch5.addConstraint(Sketcher.Constraint("Vertical", 2))
sketch5.addConstraint(Sketcher.Constraint("Horizontal", 3))
sketch5.addConstraint(Sketcher.Constraint("DistanceX", 1, 2, 1, 1, Q("14.1 mm")))
sketch5.addConstraint(Sketcher.Constraint("DistanceY", 0, 2, 0, 1, Q("1.5 mm")))
sketch5.addConstraint(Sketcher.Constraint("DistanceY", 2, 2, -1, 1, Q("4 mm")))
sketch5.addConstraint(Sketcher.Constraint("DistanceX", -1, 1, 0, 2, Q("24.195 mm")))
pad5 = doc.addObject("PartDesign::Pad", "Pad004")
body.addObject(pad5)
pad5.Profile = sketch5
pad5.Length = 1.5
pad5.Reversed = True
doc.recompute()

fillet = doc.addObject("PartDesign::Fillet", "Fillet")
body.addObject(fillet)
fillet.Base = (pad5, edges_at(pad5, [
    (17.145, -5.5, 11),
    (36.29, 22.38, 11),
    (34.533, 48.503, 11),
    (17.145, 50.26, 11),
    (-0.243, 48.503, 11),
    (-2, 22.38, 11),
    (-0.243, -3.743, 11),
    (34.533, -3.743, 11),
]))
fillet.Radius = 2

# Sketch on XZ plane
sketch6 = doc.addObject("Sketcher::SketchObject", "Sketch005")
body.addObject(sketch6)
sketch6.AttachmentSupport = (doc.XZ_Plane, [""])
sketch6.MapMode = "FlatFace"
sketch6.AttachmentOffset = App.Placement(App.Vector(0, 0, 5.5), App.Rotation())
sketch6.addGeometry(Part.LineSegment(App.Vector(10, 7, 0), App.Vector(10, 0, 0)), False)
sketch6.addGeometry(Part.LineSegment(App.Vector(10, 0, 0), App.Vector(24, 0, 0)), False)
sketch6.addGeometry(Part.LineSegment(App.Vector(24, 0, 0), App.Vector(24, 7, 0)), False)
sketch6.addGeometry(Part.LineSegment(App.Vector(24, 7, 0), App.Vector(10, 7, 0)), False)
sketch6.addConstraint(Sketcher.Constraint("Coincident", 0, 2, 1, 1))
sketch6.addConstraint(Sketcher.Constraint("Coincident", 1, 2, 2, 1))
sketch6.addConstraint(Sketcher.Constraint("Coincident", 2, 2, 3, 1))
sketch6.addConstraint(Sketcher.Constraint("Coincident", 3, 2, 0, 1))
sketch6.addConstraint(Sketcher.Constraint("Vertical", 0))
sketch6.addConstraint(Sketcher.Constraint("Horizontal", 1))
sketch6.addConstraint(Sketcher.Constraint("Vertical", 2))
sketch6.addConstraint(Sketcher.Constraint("Horizontal", 3))
sketch6.addConstraint(Sketcher.Constraint("PointOnObject", 0, 2, -1))
sketch6.addConstraint(Sketcher.Constraint("DistanceX", 1, 1, 1, 2, Q("14 mm")))
sketch6.addConstraint(Sketcher.Constraint("DistanceY", 0, 2, 0, 1, Q("7.25 mm")))
sketch6.addConstraint(Sketcher.Constraint("DistanceX", -1, 1, 0, 2, Q("10.145 mm")))
pocket1 = doc.addObject("PartDesign::Pocket", "Pocket")
body.addObject(pocket1)
pocket1.Profile = sketch6
pocket1.Type = "UpToFirst"
doc.recompute()

fillet2 = doc.addObject("PartDesign::Fillet", "Fillet001")
body.addObject(fillet2)
fillet2.Base = (pocket1, edges_at(pocket1, [
    (-1.25, 36.04, 5),
    (-1.25, 27.44, 5),
    (10.145, -4.75, 7.25),
    (24.145, -4.75, 7.25),
]))
fillet2.Radius = 1

# Sketch on XY plane
sketch7 = doc.addObject("Sketcher::SketchObject", "Sketch006")
body.addObject(sketch7)
sketch7.AttachmentSupport = (doc.XY_Plane, [""])
sketch7.MapMode = "FlatFace"
sketch7.AttachmentOffset = App.Placement(App.Vector(0, 0, 8), App.Rotation())
sketch7.addGeometry(Part.LineSegment(App.Vector(23, 49, 0), App.Vector(23, -4, 0)), False)
sketch7.addGeometry(Part.LineSegment(App.Vector(23, -4, 0), App.Vector(12, -4, 0)), False)
sketch7.addGeometry(Part.LineSegment(App.Vector(12, -4, 0), App.Vector(12, 49, 0)), False)
sketch7.addGeometry(Part.LineSegment(App.Vector(12, 49, 0), App.Vector(23, 49, 0)), False)
sketch7.addConstraint(Sketcher.Constraint("Coincident", 0, 2, 1, 1))
sketch7.addConstraint(Sketcher.Constraint("Coincident", 1, 2, 2, 1))
sketch7.addConstraint(Sketcher.Constraint("Coincident", 2, 2, 3, 1))
sketch7.addConstraint(Sketcher.Constraint("Coincident", 3, 2, 0, 1))
sketch7.addConstraint(Sketcher.Constraint("Vertical", 0))
sketch7.addConstraint(Sketcher.Constraint("Horizontal", 1))
sketch7.addConstraint(Sketcher.Constraint("Vertical", 2))
sketch7.addConstraint(Sketcher.Constraint("Horizontal", 3))
sketch7.addConstraint(Sketcher.Constraint("DistanceX", 1, 2, 1, 1, Q("11 mm")))
sketch7.addConstraint(Sketcher.Constraint("DistanceY", 0, 2, -1, 1, Q("4 mm")))
sketch7.addConstraint(Sketcher.Constraint("DistanceY", 0, 2, 0, 1, Q("52.76 mm")))
sketch7.addConstraint(Sketcher.Constraint("DistanceX", -1, 1, 0, 2, Q("22.645 mm")))
pocket2 = doc.addObject("PartDesign::Pocket", "Pocket001")
body.addObject(pocket2)
pocket2.Profile = sketch7
pocket2.Length = 1
pocket2.Reversed = True

# Sketch on XY plane
sketch8 = doc.addObject("Sketcher::SketchObject", "Sketch007")
body.addObject(sketch8)
sketch8.AttachmentSupport = (doc.XY_Plane, [""])
sketch8.MapMode = "FlatFace"
sketch8.AttachmentOffset = App.Placement(App.Vector(0, 0, 9), App.Rotation())
sketch8.addGeometry(Part.LineSegment(App.Vector(19, 48, 0), App.Vector(19, -3, 0)), False)
sketch8.addGeometry(Part.LineSegment(App.Vector(19, -3, 0), App.Vector(13, -3, 0)), False)
sketch8.addGeometry(Part.LineSegment(App.Vector(13, -3, 0), App.Vector(13, 48, 0)), False)
sketch8.addGeometry(Part.LineSegment(App.Vector(13, 48, 0), App.Vector(19, 48, 0)), False)
sketch8.addConstraint(Sketcher.Constraint("Coincident", 0, 2, 1, 1))
sketch8.addConstraint(Sketcher.Constraint("Coincident", 1, 2, 2, 1))
sketch8.addConstraint(Sketcher.Constraint("Coincident", 2, 2, 3, 1))
sketch8.addConstraint(Sketcher.Constraint("Coincident", 3, 2, 0, 1))
sketch8.addConstraint(Sketcher.Constraint("Vertical", 0))
sketch8.addConstraint(Sketcher.Constraint("Horizontal", 1))
sketch8.addConstraint(Sketcher.Constraint("Vertical", 2))
sketch8.addConstraint(Sketcher.Constraint("Horizontal", 3))
sketch8.addConstraint(Sketcher.Constraint("DistanceX", 1, 2, 1, 1, Q("5.5 mm")))
sketch8.addConstraint(Sketcher.Constraint("DistanceY", 0, 2, 0, 1, Q("50.26 mm")))
sketch8.addConstraint(Sketcher.Constraint("DistanceY", 0, 2, -1, 1, Q("2.75 mm")))
sketch8.addConstraint(Sketcher.Constraint("DistanceX", -1, 1, 0, 2, Q("18.645 mm")))
pocket3 = doc.addObject("PartDesign::Pocket", "Pocket002")
body.addObject(pocket3)
pocket3.Profile = sketch8
pocket3.Length = 1.5
pocket3.Reversed = True

# Sketch on XY plane
sketch9 = doc.addObject("Sketcher::SketchObject", "Sketch008")
body.addObject(sketch9)
sketch9.AttachmentSupport = (doc.XY_Plane, [""])
sketch9.MapMode = "FlatFace"
sketch9.AttachmentOffset = App.Placement(App.Vector(0, 0, 9), App.Rotation())
sketch9.addGeometry(Part.LineSegment(App.Vector(22.6, 12.4, 0), App.Vector(22.6, 7.4, 0)), False)
sketch9.addGeometry(Part.LineSegment(App.Vector(22.6, 7.4, 0), App.Vector(18.6, 7.4, 0)), False)
sketch9.addGeometry(Part.LineSegment(App.Vector(18.6, 7.4, 0), App.Vector(18.6, 12.4, 0)), False)
sketch9.addGeometry(Part.LineSegment(App.Vector(18.6, 12.4, 0), App.Vector(22.6, 12.4, 0)), False)
sketch9.addGeometry(Part.Circle(App.Vector(20.1, 9.9, 0), App.Vector(0, 0, 1), 1), False)
sketch9.addGeometry(Part.LineSegment(App.Vector(22.6, 37.8, 0), App.Vector(22.6, 32.8, 0)), False)
sketch9.addGeometry(Part.LineSegment(App.Vector(22.6, 32.8, 0), App.Vector(18.6, 32.8, 0)), False)
sketch9.addGeometry(Part.LineSegment(App.Vector(18.6, 32.8, 0), App.Vector(18.6, 37.8, 0)), False)
sketch9.addGeometry(Part.LineSegment(App.Vector(18.6, 37.8, 0), App.Vector(22.6, 37.8, 0)), False)
sketch9.addGeometry(Part.Circle(App.Vector(20.1, 35.3, 0), App.Vector(0, 0, 1), 1), False)
sketch9.addConstraint(Sketcher.Constraint("Coincident", 0, 2, 1, 1))
sketch9.addConstraint(Sketcher.Constraint("Coincident", 1, 2, 2, 1))
sketch9.addConstraint(Sketcher.Constraint("Coincident", 2, 2, 3, 1))
sketch9.addConstraint(Sketcher.Constraint("Coincident", 3, 2, 0, 1))
sketch9.addConstraint(Sketcher.Constraint("Coincident", 5, 2, 6, 1))
sketch9.addConstraint(Sketcher.Constraint("Coincident", 6, 2, 7, 1))
sketch9.addConstraint(Sketcher.Constraint("Coincident", 7, 2, 8, 1))
sketch9.addConstraint(Sketcher.Constraint("Coincident", 8, 2, 5, 1))
sketch9.addConstraint(Sketcher.Constraint("Vertical", 0))
sketch9.addConstraint(Sketcher.Constraint("Horizontal", 1))
sketch9.addConstraint(Sketcher.Constraint("Vertical", 2))
sketch9.addConstraint(Sketcher.Constraint("Horizontal", 3))
sketch9.addConstraint(Sketcher.Constraint("Vertical", 5))
sketch9.addConstraint(Sketcher.Constraint("Horizontal", 6))
sketch9.addConstraint(Sketcher.Constraint("Vertical", 7))
sketch9.addConstraint(Sketcher.Constraint("Horizontal", 8))
sketch9.addConstraint(Sketcher.Constraint("Equal", 4, 9))
sketch9.addConstraint(Sketcher.Constraint("Vertical", 4, 3, 9, 3))
sketch9.addConstraint(Sketcher.Constraint("Vertical", 3, 2, 5, 2))
sketch9.addConstraint(Sketcher.Constraint("Vertical", 2, 2, 6, 2))
sketch9.addConstraint(Sketcher.Constraint("Equal", 2, 5))
sketch9.addConstraint(Sketcher.Constraint("Diameter", 4, Q("2 mm")))
sketch9.addConstraint(Sketcher.Constraint("DistanceX", 1, 2, 1, 1, Q("4 mm")))
sketch9.addConstraint(Sketcher.Constraint("DistanceY", 0, 2, 0, 1, Q("5 mm")))
sketch9.addConstraint(Sketcher.Constraint("DistanceY", 4, 3, 9, 3, Q("25.4 mm")))
sketch9.addConstraint(Sketcher.Constraint("DistanceX", 4, 3, 0, 2, Q("2.5 mm")))
sketch9.addConstraint(Sketcher.Constraint("DistanceY", 0, 2, 4, 3, Q("2.5 mm")))
sketch9.addConstraint(Sketcher.Constraint("DistanceY", 5, 2, 9, 3, Q("2.5 mm")))
sketch9.addConstraint(Sketcher.Constraint("DistanceY", -1, 1, 4, 3, Q("9.86 mm")))
sketch9.addConstraint(Sketcher.Constraint("DistanceX", -1, 1, 4, 3, Q("20.145 mm")))
pad6 = doc.addObject("PartDesign::Pad", "Pad005")
body.addObject(pad6)
pad6.Profile = sketch9
pad6.Length = 1
pad6.Reversed = True

doc.recompute()
